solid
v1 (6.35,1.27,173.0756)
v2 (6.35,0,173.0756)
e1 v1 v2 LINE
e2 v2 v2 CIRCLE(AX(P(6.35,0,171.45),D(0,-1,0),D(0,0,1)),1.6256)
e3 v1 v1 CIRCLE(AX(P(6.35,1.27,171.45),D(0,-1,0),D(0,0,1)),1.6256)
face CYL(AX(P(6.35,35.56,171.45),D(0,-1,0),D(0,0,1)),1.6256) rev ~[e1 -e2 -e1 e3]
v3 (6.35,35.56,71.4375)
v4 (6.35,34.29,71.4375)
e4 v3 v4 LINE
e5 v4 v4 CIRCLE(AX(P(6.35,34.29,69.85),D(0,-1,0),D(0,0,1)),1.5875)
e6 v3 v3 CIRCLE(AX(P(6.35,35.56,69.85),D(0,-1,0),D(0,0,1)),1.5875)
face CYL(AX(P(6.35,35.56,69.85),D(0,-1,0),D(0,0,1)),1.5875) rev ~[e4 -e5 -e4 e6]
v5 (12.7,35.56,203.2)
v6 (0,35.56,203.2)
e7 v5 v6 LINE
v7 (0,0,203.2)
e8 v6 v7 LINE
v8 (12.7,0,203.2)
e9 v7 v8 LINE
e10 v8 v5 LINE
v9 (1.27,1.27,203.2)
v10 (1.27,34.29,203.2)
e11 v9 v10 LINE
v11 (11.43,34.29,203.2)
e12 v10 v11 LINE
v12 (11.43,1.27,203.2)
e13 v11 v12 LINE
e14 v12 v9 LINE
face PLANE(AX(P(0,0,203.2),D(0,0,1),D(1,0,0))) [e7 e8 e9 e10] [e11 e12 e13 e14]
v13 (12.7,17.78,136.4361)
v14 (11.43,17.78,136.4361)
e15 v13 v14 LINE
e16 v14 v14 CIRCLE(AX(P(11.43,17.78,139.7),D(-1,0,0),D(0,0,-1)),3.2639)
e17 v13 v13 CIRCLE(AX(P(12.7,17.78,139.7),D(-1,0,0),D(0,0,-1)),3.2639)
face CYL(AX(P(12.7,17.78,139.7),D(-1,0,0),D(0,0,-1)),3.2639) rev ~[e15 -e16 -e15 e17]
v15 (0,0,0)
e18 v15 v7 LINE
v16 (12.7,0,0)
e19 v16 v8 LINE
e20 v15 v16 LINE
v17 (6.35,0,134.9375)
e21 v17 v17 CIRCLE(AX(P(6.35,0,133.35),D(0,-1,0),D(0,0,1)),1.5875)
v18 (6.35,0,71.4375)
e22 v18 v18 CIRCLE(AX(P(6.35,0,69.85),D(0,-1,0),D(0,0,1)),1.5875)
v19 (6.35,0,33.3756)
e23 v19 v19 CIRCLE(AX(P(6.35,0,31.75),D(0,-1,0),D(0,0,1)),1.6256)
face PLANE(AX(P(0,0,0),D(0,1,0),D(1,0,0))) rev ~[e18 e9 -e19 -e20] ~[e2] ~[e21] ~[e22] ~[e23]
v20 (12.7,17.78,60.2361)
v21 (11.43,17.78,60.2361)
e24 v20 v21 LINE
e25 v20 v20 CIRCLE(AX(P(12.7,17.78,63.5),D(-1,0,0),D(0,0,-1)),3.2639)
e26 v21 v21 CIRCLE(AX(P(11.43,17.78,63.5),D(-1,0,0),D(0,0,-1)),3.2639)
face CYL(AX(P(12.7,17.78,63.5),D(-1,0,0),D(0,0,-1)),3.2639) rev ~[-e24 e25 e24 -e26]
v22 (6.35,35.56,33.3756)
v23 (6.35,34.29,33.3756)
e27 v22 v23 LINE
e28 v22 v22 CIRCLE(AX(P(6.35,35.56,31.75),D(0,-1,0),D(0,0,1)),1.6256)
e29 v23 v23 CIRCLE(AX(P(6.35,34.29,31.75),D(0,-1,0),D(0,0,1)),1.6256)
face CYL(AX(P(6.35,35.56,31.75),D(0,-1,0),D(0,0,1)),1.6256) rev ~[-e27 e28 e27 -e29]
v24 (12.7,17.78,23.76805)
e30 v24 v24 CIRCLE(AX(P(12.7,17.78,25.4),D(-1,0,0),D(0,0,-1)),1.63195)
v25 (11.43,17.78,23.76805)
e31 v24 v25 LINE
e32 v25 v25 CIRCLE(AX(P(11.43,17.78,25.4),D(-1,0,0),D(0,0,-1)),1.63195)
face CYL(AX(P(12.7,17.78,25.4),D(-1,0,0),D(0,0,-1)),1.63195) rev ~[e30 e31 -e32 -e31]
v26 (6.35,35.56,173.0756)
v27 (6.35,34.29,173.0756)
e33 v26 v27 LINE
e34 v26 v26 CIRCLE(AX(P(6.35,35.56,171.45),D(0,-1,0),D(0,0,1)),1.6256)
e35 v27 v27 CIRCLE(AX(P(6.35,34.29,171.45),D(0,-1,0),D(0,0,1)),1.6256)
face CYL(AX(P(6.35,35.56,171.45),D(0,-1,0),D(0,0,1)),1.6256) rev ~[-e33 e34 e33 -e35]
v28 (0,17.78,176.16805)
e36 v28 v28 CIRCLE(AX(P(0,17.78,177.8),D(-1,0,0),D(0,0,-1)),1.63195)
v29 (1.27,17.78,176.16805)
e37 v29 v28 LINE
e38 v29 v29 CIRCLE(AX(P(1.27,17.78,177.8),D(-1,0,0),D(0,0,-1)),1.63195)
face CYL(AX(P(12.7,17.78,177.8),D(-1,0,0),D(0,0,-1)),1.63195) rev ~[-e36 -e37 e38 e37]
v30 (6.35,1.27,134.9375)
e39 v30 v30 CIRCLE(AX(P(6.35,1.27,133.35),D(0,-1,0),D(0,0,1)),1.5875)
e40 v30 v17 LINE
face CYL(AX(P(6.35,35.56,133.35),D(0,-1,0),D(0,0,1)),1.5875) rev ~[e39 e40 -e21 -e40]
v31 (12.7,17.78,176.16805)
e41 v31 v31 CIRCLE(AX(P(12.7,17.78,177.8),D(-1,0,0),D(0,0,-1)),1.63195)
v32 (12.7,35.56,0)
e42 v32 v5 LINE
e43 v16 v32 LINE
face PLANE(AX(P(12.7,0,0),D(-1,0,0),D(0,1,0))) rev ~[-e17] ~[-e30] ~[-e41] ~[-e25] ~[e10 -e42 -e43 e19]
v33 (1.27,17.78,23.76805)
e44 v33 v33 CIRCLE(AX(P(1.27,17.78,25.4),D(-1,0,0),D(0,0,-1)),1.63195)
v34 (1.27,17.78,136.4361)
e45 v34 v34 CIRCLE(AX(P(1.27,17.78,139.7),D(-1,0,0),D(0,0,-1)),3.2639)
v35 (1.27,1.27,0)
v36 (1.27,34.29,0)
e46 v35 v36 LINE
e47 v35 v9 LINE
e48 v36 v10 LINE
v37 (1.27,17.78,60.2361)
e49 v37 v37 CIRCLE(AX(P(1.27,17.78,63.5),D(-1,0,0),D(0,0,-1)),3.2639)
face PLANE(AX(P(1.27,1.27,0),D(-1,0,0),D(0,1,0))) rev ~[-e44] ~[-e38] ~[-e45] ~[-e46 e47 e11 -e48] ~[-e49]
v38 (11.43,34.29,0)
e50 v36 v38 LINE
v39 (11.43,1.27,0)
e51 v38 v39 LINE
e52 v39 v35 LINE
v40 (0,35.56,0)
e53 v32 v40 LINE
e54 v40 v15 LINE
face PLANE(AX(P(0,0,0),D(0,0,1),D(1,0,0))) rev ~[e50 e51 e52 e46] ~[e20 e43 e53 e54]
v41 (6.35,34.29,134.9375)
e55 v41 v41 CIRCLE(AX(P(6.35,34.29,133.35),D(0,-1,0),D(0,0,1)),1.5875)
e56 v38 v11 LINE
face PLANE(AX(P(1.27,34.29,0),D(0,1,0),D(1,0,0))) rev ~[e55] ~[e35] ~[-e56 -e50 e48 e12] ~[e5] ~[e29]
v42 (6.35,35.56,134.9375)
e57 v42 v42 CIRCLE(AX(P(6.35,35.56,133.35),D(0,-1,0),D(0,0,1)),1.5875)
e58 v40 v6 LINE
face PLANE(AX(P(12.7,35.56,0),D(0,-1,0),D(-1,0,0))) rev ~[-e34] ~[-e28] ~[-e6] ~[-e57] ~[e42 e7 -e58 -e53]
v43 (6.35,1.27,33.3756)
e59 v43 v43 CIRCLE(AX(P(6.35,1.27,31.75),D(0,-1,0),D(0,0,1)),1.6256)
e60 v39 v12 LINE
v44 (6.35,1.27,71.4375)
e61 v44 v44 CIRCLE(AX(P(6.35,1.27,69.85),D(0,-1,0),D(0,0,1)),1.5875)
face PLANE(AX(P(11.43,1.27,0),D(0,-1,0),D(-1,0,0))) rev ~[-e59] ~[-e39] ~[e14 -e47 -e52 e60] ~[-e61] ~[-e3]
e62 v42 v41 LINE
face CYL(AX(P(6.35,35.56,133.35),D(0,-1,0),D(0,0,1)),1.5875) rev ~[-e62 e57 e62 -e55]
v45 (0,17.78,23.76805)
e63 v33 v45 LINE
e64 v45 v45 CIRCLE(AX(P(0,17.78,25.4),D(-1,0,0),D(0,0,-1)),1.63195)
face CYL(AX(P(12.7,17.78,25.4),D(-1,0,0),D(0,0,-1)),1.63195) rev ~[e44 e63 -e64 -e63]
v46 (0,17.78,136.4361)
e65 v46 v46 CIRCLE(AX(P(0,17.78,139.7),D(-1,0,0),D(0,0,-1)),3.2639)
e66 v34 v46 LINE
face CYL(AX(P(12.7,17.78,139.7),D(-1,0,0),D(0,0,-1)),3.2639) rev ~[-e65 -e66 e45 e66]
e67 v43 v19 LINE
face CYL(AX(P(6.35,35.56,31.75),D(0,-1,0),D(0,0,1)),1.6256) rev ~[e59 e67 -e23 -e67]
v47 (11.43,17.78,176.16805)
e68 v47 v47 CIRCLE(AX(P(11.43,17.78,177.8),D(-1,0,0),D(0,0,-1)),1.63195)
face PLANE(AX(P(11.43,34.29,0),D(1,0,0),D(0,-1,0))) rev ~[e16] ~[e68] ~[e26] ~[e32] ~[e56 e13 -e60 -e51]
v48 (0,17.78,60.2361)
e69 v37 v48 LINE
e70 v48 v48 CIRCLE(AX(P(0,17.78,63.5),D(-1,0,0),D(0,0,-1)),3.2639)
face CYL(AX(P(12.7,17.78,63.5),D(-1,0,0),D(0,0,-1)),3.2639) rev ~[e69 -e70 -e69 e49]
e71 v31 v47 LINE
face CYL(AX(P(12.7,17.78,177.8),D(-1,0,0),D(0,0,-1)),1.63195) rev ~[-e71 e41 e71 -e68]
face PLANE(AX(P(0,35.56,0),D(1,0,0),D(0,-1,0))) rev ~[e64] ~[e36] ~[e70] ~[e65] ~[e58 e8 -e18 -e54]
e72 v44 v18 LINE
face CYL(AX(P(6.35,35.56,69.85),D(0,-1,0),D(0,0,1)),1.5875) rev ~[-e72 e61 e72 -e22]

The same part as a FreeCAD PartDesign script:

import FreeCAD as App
import Part
import Sketcher
from FreeCAD import Vector
Q = App.Units.Quantity


def add_polygon(sketch, points):
    """Adds a closed chain of lines whose ends are joined by coincident constraints."""
    first, n = sketch.GeometryCount, len(points)
    for a, b in zip(points, points[1:] + points[:1]):
        sketch.addGeometry(Part.LineSegment(App.Vector(*a, 0), App.Vector(*b, 0)), False)
    for i in range(n):
        sketch.addConstraint(Sketcher.Constraint("Coincident", first + i, 2, first + (i + 1) % n, 1))

doc = App.newDocument("Part")
body = doc.addObject("PartDesign::Body", "Body")

sketch1 = doc.addObject("Sketcher::SketchObject", "Sketch")
body.addObject(sketch1)
sketch1.AttachmentSupport = (doc.XY_Plane, [""])
sketch1.MapMode = "FlatFace"
add_polygon(sketch1, [(0, 36), (0, 0), (13, 0), (13, 36)])
add_polygon(sketch1, [(1, 1), (1, 34), (11, 34), (11, 1)])
sketch1.addConstraint([
    Sketcher.Constraint("Vertical", 0),
    Sketcher.Constraint("Horizontal", 1),
    Sketcher.Constraint("Vertical", 2),
    Sketcher.Constraint("Horizontal", 3),
    Sketcher.Constraint("Vertical", 4),
    Sketcher.Constraint("Horizontal", 5),
    Sketcher.Constraint("Vertical", 6),
    Sketcher.Constraint("Horizontal", 7),
    Sketcher.Constraint("Coincident", 0, 2, -1, 1),
    Sketcher.Constraint("DistanceX", 1, 1, 1, 2, Q("0.5 in")),
    Sketcher.Constraint("DistanceY", 0, 2, 0, 1, Q("1.4 in")),
    Sketcher.Constraint("DistanceX", -1, 1, 4, 2, Q("0.05 in")),
    Sketcher.Constraint("DistanceY", -1, 1, 6, 2, Q("0.05 in")),
    Sketcher.Constraint("DistanceY", 4, 2, 3, 2, Q("0.05 in")),
    Sketcher.Constraint("DistanceX", 5, 2, 2, 2, Q("0.05 in")),
])
pad1 = doc.addObject("PartDesign::Pad", "Pad")
body.addObject(pad1)
pad1.Profile = sketch1
pad1.Length = Q("8 in")

sketch2 = doc.addObject("Sketcher::SketchObject", "Sketch001")
body.addObject(sketch2)
sketch2.AttachmentSupport = (doc.YZ_Plane, [""])
sketch2.MapMode = "FlatFace"
sketch2.AttachmentOffset = App.Placement(Vector(0, 0, 0.5 * 25.4), App.Rotation())
sketch2.addGeometry([
    Part.Circle(Vector(17.8, 177.8, 0), Vector(0, 0, 1), 1.6),
    Part.Circle(Vector(17.8, 25.4, 0), Vector(0, 0, 1), 1.6),
], False)
sketch2.addConstraint([
    Sketcher.Constraint("Equal", 0, 1),
    Sketcher.Constraint("Vertical", 0, 3, 1, 3),
    Sketcher.Constraint("DistanceY", -1, 1, 0, 3, Q("7 in")),
    Sketcher.Constraint("DistanceY", -1, 1, 1, 3, Q("1 in")),
    Sketcher.Constraint("Diameter", 0, Q("0.1285 in")),
    Sketcher.Constraint("DistanceX", -1, 1, 0, 3, Q("0.7 in")),
])
doc.recompute()
hole = doc.addObject("PartDesign::Hole", "Hole")
body.addObject(hole)
hole.Profile = sketch2
hole.ThreadType = "None"
hole.Diameter = Q("0.1285 in")
hole.DepthType = "ThroughAll"

sketch3 = doc.addObject("Sketcher::SketchObject", "Sketch002")
body.addObject(sketch3)
sketch3.AttachmentSupport = (doc.YZ_Plane, [""])
sketch3.MapMode = "FlatFace"
sketch3.AttachmentOffset = App.Placement(Vector(0, 0, 0.5 * 25.4), App.Rotation())
sketch3.addGeometry([
    Part.Circle(Vector(17.8, 139.7, 0), Vector(0, 0, 1), 3.3),
    Part.Circle(Vector(17.8, 63.5, 0), Vector(0, 0, 1), 3.3),
], False)
sketch3.addConstraint([
    Sketcher.Constraint("Equal", 0, 1),
    Sketcher.Constraint("Vertical", 0, 3, 1, 3),
    Sketcher.Constraint("Diameter", 0, Q("0.257 in")),
    Sketcher.Constraint("DistanceY", 1, 3, 0, 3, Q("3 in")),
    Sketcher.Constraint("DistanceX", -1, 1, 0, 3, Q("0.7 in")),
    Sketcher.Constraint("DistanceY", -1, 1, 0, 3, Q("5.5 in")),
])
doc.recompute()
hole2 = doc.addObject("PartDesign::Hole", "Hole001")
body.addObject(hole2)
hole2.Profile = sketch3
hole2.ThreadType = "None"
hole2.Diameter = Q("0.257 in")
hole2.DepthType = "ThroughAll"

sketch4 = doc.addObject("Sketcher::SketchObject", "Sketch003")
body.addObject(sketch4)
sketch4.AttachmentSupport = (doc.XZ_Plane, [""])
sketch4.MapMode = "FlatFace"
sketch4.AttachmentOffset = App.Placement(Vector(0, 0, -1.4 * 25.4), App.Rotation())
sketch4.addGeometry([
    Part.Circle(Vector(6.3, 31.8, 0), Vector(0, 0, 1), 1.6),
    Part.Circle(Vector(6.3, 171.4, 0), Vector(0, 0, 1), 1.6),
], False)
sketch4.addConstraint([
    Sketcher.Constraint("Equal", 0, 1),
    Sketcher.Constraint("Vertical", 0, 3, 1, 3),
    Sketcher.Constraint("Diameter", 0, Q("0.128 in")),
    Sketcher.Constraint("DistanceY", 0, 3, 1, 3, Q("5.5 in")),
    Sketcher.Constraint("DistanceX", -1, 1, 0, 3, Q("0.25 in")),
    Sketcher.Constraint("DistanceY", -1, 1, 0, 3, Q("1.25 in")),
])
doc.recompute()
hole3 = doc.addObject("PartDesign::Hole", "Hole002")
body.addObject(hole3)
hole3.Profile = sketch4
hole3.ThreadType = "None"
hole3.Diameter = Q("0.128 in")
hole3.DepthType = "ThroughAll"
hole3.Reversed = True

sketch5 = doc.addObject("Sketcher::SketchObject", "Sketch004")
body.addObject(sketch5)
sketch5.AttachmentSupport = (doc.XZ_Plane, [""])
sketch5.MapMode = "FlatFace"
sketch5.AttachmentOffset = App.Placement(Vector(0, 0, -1.4 * 25.4), App.Rotation())
sketch5.addGeometry([
    Part.Circle(Vector(6.3, 69.8, 0), Vector(0, 0, 1), 1.6),
    Part.Circle(Vector(6.3, 133.3, 0), Vector(0, 0, 1), 1.6),
], False)
sketch5.addConstraint([
    Sketcher.Constraint("Equal", 0, 1),
    Sketcher.Constraint("Vertical", 0, 3, 1, 3),
    Sketcher.Constraint("Diameter", 0, Q("0.125 in")),
    Sketcher.Constraint("DistanceY", 0, 3, 1, 3, Q("2.5 in")),
    Sketcher.Constraint("DistanceX", -1, 1, 0, 3, Q("0.25 in")),
    Sketcher.Constraint("DistanceY", -1, 1, 0, 3, Q("2.75 in")),
])
doc.recompute()
hole4 = doc.addObject("PartDesign::Hole", "Hole003")
body.addObject(hole4)
hole4.Profile = sketch5
hole4.ThreadType = "None"
hole4.Diameter = Q("0.125 in")
hole4.DepthType = "ThroughAll"
hole4.Reversed = True

doc.recompute()
